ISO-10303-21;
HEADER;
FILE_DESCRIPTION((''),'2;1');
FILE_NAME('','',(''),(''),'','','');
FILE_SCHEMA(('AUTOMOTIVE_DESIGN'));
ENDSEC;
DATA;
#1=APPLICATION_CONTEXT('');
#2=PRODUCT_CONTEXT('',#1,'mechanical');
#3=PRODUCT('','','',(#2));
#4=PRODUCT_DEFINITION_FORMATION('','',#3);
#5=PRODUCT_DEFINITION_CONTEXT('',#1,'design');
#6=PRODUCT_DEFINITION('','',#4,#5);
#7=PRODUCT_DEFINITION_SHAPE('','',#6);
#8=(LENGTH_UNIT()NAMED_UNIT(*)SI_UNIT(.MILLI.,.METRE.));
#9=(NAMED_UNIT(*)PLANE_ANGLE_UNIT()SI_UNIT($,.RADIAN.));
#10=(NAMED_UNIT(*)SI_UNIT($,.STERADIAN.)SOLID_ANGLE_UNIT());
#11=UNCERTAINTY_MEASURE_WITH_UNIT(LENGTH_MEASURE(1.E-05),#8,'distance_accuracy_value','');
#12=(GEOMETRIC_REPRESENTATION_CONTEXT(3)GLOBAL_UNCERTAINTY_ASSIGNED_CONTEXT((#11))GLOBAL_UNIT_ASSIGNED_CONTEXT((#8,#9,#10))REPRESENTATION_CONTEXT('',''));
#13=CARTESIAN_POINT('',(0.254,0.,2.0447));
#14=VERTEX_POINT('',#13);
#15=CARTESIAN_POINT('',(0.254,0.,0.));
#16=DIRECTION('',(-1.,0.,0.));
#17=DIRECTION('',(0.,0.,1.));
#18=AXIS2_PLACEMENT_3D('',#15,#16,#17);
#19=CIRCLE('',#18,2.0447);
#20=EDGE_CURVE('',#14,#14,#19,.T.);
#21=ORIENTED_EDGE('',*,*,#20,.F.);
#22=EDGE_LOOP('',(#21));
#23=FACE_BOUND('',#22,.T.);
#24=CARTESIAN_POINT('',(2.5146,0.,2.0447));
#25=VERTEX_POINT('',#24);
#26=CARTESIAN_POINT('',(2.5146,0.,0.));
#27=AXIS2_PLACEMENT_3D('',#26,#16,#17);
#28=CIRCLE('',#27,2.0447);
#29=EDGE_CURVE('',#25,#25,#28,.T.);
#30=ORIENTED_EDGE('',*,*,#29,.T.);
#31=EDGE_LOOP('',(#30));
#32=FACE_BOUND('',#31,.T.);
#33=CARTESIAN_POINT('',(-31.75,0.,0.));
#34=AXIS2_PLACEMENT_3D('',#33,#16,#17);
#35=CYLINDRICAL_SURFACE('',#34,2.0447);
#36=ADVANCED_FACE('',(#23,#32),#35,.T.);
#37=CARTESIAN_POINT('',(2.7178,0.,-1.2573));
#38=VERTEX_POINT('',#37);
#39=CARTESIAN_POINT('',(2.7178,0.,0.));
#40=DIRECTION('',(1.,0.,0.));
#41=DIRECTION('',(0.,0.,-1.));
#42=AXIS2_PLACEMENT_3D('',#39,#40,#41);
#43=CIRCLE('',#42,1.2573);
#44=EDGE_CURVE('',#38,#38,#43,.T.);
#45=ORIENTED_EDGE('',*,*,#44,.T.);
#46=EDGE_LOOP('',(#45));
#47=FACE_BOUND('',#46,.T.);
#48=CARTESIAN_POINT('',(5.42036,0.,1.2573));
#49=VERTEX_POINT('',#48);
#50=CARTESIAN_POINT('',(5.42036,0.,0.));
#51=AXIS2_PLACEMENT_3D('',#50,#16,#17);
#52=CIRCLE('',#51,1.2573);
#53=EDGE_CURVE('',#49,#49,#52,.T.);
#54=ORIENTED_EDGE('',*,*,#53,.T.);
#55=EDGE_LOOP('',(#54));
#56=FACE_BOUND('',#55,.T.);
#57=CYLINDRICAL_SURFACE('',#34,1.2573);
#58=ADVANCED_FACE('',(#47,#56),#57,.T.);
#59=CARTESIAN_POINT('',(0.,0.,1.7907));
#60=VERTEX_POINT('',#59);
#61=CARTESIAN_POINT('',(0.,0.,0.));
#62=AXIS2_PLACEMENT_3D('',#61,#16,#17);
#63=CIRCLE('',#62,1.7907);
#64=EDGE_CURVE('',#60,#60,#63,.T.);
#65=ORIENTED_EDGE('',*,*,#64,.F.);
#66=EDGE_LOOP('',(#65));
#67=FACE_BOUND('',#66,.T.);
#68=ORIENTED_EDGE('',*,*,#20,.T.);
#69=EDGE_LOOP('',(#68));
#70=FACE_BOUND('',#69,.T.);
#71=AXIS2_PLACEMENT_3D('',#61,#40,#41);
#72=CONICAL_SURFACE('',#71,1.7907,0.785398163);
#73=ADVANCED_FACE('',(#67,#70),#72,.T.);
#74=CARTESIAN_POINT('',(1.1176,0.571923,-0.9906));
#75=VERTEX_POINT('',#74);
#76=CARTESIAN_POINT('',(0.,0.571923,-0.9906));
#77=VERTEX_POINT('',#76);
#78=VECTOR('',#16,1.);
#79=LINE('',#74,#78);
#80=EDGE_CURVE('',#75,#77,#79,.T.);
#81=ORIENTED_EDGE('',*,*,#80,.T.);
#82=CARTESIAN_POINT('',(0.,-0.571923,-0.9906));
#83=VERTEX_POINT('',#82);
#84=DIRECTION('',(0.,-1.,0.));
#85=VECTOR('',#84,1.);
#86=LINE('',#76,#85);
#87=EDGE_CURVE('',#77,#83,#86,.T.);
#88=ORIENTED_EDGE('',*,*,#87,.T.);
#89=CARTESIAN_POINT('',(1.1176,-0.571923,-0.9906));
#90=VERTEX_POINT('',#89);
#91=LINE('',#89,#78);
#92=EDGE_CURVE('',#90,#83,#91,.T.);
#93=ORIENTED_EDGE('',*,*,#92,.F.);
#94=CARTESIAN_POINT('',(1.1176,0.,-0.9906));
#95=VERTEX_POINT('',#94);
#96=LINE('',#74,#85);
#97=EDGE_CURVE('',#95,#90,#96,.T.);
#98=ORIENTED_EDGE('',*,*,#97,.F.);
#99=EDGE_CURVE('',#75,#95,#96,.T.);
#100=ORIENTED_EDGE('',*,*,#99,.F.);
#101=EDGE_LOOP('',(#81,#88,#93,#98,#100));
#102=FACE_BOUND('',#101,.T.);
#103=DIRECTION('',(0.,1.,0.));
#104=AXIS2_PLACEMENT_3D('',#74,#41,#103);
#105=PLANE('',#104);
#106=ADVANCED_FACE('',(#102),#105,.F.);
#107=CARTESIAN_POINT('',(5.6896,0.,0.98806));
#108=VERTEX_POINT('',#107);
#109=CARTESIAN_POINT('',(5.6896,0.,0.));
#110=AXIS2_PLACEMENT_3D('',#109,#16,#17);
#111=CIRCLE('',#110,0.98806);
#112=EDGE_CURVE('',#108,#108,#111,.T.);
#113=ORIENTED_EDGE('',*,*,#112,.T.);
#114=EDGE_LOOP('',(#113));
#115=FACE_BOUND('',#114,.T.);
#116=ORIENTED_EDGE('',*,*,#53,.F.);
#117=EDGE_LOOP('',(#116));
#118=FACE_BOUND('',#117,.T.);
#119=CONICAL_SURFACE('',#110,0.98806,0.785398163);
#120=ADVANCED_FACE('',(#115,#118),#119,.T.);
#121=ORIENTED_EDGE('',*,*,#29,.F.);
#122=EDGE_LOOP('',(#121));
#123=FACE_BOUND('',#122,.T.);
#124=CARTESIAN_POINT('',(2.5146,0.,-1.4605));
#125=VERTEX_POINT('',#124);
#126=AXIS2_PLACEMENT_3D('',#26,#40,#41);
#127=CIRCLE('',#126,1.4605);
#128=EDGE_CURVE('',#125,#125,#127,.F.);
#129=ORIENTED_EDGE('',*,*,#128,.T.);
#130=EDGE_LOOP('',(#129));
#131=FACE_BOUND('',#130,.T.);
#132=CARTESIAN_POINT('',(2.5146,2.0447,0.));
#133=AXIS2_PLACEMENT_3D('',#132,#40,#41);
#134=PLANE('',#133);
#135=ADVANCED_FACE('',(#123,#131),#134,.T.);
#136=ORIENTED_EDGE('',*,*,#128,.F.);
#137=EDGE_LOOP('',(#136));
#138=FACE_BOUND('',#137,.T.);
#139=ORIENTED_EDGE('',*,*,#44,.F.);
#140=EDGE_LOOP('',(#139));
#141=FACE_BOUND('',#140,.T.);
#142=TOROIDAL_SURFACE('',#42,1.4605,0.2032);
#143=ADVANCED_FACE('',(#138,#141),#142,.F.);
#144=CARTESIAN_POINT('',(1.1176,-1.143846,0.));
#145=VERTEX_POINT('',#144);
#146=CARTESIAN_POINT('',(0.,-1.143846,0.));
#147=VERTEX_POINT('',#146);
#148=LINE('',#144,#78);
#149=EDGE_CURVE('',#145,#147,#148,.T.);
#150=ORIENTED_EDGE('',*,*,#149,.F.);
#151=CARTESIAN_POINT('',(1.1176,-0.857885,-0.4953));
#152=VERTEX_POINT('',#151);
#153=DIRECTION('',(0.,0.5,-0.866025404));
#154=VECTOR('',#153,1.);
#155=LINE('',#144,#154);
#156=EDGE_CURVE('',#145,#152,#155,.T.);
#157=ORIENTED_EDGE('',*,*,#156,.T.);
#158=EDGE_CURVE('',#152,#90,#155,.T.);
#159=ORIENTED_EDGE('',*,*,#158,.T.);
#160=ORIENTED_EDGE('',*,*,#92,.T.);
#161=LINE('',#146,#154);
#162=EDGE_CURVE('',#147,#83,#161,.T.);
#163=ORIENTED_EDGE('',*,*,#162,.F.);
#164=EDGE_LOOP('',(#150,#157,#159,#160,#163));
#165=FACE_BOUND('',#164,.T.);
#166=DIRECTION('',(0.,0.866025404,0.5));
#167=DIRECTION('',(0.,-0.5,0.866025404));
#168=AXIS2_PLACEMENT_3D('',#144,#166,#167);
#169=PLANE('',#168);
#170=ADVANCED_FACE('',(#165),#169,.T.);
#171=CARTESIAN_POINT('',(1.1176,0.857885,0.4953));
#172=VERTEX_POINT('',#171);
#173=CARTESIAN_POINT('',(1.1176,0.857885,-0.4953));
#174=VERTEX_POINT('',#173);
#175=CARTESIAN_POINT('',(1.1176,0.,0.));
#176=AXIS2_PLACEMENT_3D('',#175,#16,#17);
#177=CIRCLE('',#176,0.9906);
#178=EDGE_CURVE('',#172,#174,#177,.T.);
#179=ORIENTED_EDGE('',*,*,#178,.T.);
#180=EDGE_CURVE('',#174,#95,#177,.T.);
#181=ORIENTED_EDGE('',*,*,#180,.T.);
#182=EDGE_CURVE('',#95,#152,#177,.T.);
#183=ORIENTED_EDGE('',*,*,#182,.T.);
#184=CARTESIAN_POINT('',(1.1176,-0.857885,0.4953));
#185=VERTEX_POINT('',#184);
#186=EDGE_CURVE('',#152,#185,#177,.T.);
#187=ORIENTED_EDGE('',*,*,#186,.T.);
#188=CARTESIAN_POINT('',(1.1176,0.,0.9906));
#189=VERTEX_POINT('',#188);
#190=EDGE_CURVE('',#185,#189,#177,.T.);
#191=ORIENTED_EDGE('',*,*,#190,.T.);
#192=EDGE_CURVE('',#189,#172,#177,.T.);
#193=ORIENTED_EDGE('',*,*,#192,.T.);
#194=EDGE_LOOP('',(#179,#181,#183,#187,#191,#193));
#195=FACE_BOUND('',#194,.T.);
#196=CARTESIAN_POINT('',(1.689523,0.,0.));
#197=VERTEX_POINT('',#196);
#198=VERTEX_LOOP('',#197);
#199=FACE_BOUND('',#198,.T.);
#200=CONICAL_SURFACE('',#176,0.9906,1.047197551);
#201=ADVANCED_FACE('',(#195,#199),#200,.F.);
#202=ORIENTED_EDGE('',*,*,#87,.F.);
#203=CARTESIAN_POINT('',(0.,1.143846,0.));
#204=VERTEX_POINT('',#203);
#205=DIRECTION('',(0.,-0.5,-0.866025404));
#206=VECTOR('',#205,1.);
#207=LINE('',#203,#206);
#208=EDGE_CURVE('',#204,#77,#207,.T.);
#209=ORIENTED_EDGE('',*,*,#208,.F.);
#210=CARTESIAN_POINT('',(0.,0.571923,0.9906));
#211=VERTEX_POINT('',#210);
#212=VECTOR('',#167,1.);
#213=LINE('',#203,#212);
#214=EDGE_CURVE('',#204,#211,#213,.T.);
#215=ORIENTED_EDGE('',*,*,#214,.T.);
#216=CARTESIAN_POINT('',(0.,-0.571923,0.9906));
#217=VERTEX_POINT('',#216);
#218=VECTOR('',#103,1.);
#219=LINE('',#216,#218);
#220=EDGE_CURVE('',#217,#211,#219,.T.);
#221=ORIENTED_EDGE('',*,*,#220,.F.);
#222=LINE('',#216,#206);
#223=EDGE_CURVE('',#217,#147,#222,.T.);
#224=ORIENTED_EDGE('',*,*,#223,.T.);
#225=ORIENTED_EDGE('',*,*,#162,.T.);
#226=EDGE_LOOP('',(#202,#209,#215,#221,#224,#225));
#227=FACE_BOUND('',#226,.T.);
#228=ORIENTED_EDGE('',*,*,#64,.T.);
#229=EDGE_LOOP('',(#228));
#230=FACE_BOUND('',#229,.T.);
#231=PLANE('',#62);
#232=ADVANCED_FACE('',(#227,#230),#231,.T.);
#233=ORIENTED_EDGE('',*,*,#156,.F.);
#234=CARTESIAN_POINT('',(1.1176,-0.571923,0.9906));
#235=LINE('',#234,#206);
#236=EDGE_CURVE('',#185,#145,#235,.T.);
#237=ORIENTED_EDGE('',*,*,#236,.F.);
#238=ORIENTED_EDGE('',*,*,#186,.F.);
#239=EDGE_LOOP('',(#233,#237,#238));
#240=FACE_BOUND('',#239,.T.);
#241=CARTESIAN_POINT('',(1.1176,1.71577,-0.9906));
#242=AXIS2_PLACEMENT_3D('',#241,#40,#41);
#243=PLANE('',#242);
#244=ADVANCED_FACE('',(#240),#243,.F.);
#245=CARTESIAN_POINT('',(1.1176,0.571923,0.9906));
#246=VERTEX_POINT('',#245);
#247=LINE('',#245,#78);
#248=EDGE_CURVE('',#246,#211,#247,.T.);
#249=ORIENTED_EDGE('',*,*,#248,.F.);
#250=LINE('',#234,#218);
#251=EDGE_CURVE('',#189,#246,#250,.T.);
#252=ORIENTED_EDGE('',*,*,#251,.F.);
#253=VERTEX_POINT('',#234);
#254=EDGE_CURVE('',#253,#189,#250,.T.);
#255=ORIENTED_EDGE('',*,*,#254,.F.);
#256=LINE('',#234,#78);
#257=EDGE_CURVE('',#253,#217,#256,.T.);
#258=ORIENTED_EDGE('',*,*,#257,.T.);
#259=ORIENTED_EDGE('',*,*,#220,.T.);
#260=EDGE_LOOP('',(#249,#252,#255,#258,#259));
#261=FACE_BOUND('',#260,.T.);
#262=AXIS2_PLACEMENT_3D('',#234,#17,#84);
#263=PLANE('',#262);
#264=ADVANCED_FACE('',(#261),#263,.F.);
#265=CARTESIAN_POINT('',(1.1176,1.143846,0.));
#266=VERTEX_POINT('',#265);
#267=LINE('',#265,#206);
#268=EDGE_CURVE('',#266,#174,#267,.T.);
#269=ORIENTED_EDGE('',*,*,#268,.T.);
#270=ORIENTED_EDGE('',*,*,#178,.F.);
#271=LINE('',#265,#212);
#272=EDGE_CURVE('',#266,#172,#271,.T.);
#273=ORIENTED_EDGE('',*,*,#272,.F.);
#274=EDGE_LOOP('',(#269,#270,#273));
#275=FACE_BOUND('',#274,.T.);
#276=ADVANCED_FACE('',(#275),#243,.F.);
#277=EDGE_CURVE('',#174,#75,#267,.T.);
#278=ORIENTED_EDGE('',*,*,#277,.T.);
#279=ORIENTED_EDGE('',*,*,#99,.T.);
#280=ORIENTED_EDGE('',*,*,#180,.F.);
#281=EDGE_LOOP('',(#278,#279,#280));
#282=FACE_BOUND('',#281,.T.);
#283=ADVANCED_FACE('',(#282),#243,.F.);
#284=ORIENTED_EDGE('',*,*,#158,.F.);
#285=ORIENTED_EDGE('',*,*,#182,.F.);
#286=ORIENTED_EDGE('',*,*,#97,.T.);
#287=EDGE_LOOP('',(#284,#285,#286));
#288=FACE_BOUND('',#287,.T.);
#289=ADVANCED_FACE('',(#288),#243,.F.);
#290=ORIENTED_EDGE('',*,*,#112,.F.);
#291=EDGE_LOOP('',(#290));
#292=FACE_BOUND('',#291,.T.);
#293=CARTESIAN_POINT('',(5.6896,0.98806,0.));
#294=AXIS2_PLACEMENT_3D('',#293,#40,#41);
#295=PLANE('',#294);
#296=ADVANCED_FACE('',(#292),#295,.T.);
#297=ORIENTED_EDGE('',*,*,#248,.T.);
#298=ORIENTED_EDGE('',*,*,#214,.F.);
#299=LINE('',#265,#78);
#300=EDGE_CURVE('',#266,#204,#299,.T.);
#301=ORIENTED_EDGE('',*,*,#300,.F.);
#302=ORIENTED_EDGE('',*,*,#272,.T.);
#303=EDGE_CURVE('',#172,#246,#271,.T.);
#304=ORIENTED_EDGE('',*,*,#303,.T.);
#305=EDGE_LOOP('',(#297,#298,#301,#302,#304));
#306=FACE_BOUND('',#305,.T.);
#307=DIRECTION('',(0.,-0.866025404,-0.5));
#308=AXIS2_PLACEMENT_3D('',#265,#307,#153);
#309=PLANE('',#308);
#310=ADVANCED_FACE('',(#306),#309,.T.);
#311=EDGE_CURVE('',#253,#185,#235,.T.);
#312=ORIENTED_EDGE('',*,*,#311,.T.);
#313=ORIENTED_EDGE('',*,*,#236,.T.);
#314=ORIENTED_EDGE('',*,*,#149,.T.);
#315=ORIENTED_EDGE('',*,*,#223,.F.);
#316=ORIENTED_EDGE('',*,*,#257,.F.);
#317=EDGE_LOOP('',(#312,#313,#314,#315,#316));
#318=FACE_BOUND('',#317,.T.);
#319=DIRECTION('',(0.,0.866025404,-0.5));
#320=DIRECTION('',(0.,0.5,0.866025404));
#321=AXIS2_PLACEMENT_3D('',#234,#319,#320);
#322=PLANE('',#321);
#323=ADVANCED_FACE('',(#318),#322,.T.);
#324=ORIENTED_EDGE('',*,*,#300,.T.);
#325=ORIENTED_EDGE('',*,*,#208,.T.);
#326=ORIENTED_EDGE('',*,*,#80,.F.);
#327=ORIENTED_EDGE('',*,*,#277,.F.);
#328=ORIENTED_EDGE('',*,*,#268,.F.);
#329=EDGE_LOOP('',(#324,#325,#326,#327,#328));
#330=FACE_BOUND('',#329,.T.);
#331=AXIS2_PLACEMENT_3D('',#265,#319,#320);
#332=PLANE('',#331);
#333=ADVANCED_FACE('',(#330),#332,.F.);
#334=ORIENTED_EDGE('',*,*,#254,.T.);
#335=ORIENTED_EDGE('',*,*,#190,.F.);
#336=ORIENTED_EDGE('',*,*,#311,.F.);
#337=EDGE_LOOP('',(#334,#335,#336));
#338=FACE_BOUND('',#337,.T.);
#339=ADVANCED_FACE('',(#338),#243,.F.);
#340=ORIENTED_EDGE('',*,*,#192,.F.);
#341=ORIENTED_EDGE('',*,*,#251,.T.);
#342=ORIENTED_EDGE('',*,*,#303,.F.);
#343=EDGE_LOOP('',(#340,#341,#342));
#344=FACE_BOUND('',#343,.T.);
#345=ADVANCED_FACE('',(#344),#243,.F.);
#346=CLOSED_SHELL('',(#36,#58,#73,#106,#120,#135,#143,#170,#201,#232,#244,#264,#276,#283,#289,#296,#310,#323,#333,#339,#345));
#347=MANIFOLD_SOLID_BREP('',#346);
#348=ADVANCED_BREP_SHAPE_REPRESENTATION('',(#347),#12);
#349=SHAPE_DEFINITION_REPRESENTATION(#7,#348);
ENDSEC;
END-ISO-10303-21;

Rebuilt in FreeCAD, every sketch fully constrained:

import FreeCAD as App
import Part
import Sketcher
Q = App.Units.Quantity


def edges_at(feature, points):
    """Names of the edges that pass closest to the given points."""
    edges = feature.Shape.Edges
    near = lambda p: min(range(len(edges)), key=lambda i: edges[i].distToShape(Part.Vertex(*p))[0])
    return sorted({f"Edge{near(p) + 1}" for p in points})

doc = App.newDocument("Part")
params = doc.addObject("Spreadsheet::Sheet", "Params")
for row, (alias, value) in enumerate([
    ("sketch1_width", "0.224 in"),
    ("sketch1_width2", "0.089 in"),
    ("sketch1_height", "0.031 in"),
    ("revolution_angle", "360 deg"),
    ("fillet_radius", "0.008 in"),
    ("sketch2_width", "0.044 in"),
    ("sketch2_height", "0.039 in"),
    ("groove_angle", "360 deg"),
    ("pocket1_length", "0.044 in"),
], start=1):
    params.set(f"A{row}", alias)
    params.set(f"B{row}", "=" + value)
    params.setAlias(f"B{row}", alias)

body = doc.addObject("PartDesign::Body", "Body")

sketch1 = body.newObject("Sketcher::SketchObject", "Sketch")
sketch1.AttachmentSupport = (doc.getObject("XY_Plane"), [""])
sketch1.MapMode = "FlatFace"
sketch1.addGeometry(Part.LineSegment(App.Vector(0, 1.79, 0), App.Vector(0, 0, 0)), False)
sketch1.addGeometry(Part.LineSegment(App.Vector(0, 0, 0), App.Vector(5.69, 0, 0)), False)
sketch1.addGeometry(Part.LineSegment(App.Vector(5.69, 0, 0), App.Vector(5.69, 0.99, 0)), False)
sketch1.addGeometry(Part.LineSegment(App.Vector(5.69, 0.99, 0), App.Vector(5.42, 1.26, 0)), False)
sketch1.addGeometry(Part.LineSegment(App.Vector(5.42, 1.26, 0), App.Vector(2.51, 1.26, 0)), False)
sketch1.addGeometry(Part.LineSegment(App.Vector(2.51, 1.26, 0), App.Vector(2.51, 2.04, 0)), False)
sketch1.addGeometry(Part.LineSegment(App.Vector(2.51, 2.04, 0), App.Vector(0.25, 2.04, 0)), False)
sketch1.addGeometry(Part.LineSegment(App.Vector(0.25, 2.04, 0), App.Vector(0, 1.79, 0)), False)
sketch1.addConstraint(Sketcher.Constraint("Coincident", 0, 2, 1, 1))
sketch1.addConstraint(Sketcher.Constraint("Coincident", 1, 2, 2, 1))
sketch1.addConstraint(Sketcher.Constraint("Coincident", 2, 2, 3, 1))
sketch1.addConstraint(Sketcher.Constraint("Coincident", 3, 2, 4, 1))
sketch1.addConstraint(Sketcher.Constraint("Coincident", 4, 2, 5, 1))
sketch1.addConstraint(Sketcher.Constraint("Coincident", 5, 2, 6, 1))
sketch1.addConstraint(Sketcher.Constraint("Coincident", 6, 2, 7, 1))
sketch1.addConstraint(Sketcher.Constraint("Coincident", 7, 2, 0, 1))
sketch1.addConstraint(Sketcher.Constraint("Vertical", 0))
sketch1.addConstraint(Sketcher.Constraint("Horizontal", 1))
sketch1.addConstraint(Sketcher.Constraint("Vertical", 2))
sketch1.addConstraint(Sketcher.Constraint("Horizontal", 4))
sketch1.addConstraint(Sketcher.Constraint("Vertical", 5))
sketch1.addConstraint(Sketcher.Constraint("Horizontal", 6))
sketch1.addConstraint(Sketcher.Constraint("Coincident", 0, 2, -1, 1))
sketch1.addConstraint(Sketcher.Constraint("Perpendicular", 3, 7))
sketch1.addConstraint(Sketcher.Constraint("Angle", 3, Q("135 deg")))
sketch1.addConstraint(Sketcher.Constraint("DistanceX", 1, 1, 1, 2, Q("0.224 in")))
sketch1.addConstraint(Sketcher.Constraint("DistanceX", 6, 2, 6, 1, Q("0.089 in")))
sketch1.addConstraint(Sketcher.Constraint("DistanceY", 5, 1, 5, 2, Q("0.031 in")))
sketch1.addConstraint(Sketcher.Constraint("DistanceX", -1, 1, 6, 2, Q("0.01 in")))
sketch1.addConstraint(Sketcher.Constraint("DistanceX", 4, 2, 4, 1, Q("0.1144 in")))
sketch1.addConstraint(Sketcher.Constraint("DistanceY", 0, 2, 0, 1, Q("0.0705 in")))
sketch1.setExpression("Constraints[17]", "Params.sketch1_width")
sketch1.setExpression("Constraints[18]", "Params.sketch1_width2")
sketch1.setExpression("Constraints[19]", "Params.sketch1_height")
revolution = body.newObject("PartDesign::Revolution", "Revolution")
revolution.Profile = sketch1
revolution.ReferenceAxis = (sketch1, ["H_Axis"])
revolution.setExpression("Angle", "Params.revolution_angle")
doc.recompute()

fillet = body.newObject("PartDesign::Fillet", "Fillet")
fillet.Base = (revolution, edges_at(revolution, [(2.515, 0, -1.257)]))
fillet.setExpression("Radius", "Params.fillet_radius")

sketch2 = body.newObject("Sketcher::SketchObject", "Sketch001")
sketch2.AttachmentSupport = (doc.getObject("XY_Plane"), [""])
sketch2.MapMode = "FlatFace"
sketch2.addGeometry(Part.LineSegment(App.Vector(1.1, 1, 0), App.Vector(0, 1, 0)), False)
sketch2.addGeometry(Part.LineSegment(App.Vector(0, 1, 0), App.Vector(0, 0, 0)), False)
sketch2.addGeometry(Part.LineSegment(App.Vector(0, 0, 0), App.Vector(1.7, 0, 0)), False)
sketch2.addGeometry(Part.LineSegment(App.Vector(1.7, 0, 0), App.Vector(1.1, 1, 0)), False)
sketch2.addConstraint(Sketcher.Constraint("Coincident", 0, 2, 1, 1))
sketch2.addConstraint(Sketcher.Constraint("Coincident", 1, 2, 2, 1))
sketch2.addConstraint(Sketcher.Constraint("Coincident", 2, 2, 3, 1))
sketch2.addConstraint(Sketcher.Constraint("Coincident", 3, 2, 0, 1))
sketch2.addConstraint(Sketcher.Constraint("Horizontal", 0))
sketch2.addConstraint(Sketcher.Constraint("Vertical", 1))
sketch2.addConstraint(Sketcher.Constraint("Horizontal", 2))
sketch2.addConstraint(Sketcher.Constraint("Coincident", 1, 2, -1, 1))
sketch2.addConstraint(Sketcher.Constraint("Angle", 3, Q("120 deg")))
sketch2.addConstraint(Sketcher.Constraint("DistanceX", 0, 2, 0, 1, Q("0.044 in")))
sketch2.addConstraint(Sketcher.Constraint("DistanceY", 1, 2, 1, 1, Q("0.039 in")))
sketch2.setExpression("Constraints[9]", "Params.sketch2_width")
sketch2.setExpression("Constraints[10]", "Params.sketch2_height")
groove = body.newObject("PartDesign::Groove", "Groove")
groove.Profile = sketch2
groove.ReferenceAxis = (sketch2, ["H_Axis"])
groove.setExpression("Angle", "Params.groove_angle")

sketch3 = body.newObject("Sketcher::SketchObject", "Sketch002")
sketch3.AttachmentSupport = (doc.getObject("YZ_Plane"), [""])
sketch3.MapMode = "FlatFace"
sketch3.addGeometry(Part.LineSegment(App.Vector(1.1, 0, 0), App.Vector(0.6, -1, 0)), False)
sketch3.addGeometry(Part.LineSegment(App.Vector(0.6, -1, 0), App.Vector(-0.6, -1, 0)), False)
sketch3.addGeometry(Part.LineSegment(App.Vector(-0.6, -1, 0), App.Vector(-1.1, 0, 0)), False)
sketch3.addGeometry(Part.LineSegment(App.Vector(-1.1, 0, 0), App.Vector(-0.6, 1, 0)), False)
sketch3.addGeometry(Part.LineSegment(App.Vector(-0.6, 1, 0), App.Vector(0.6, 1, 0)), False)
sketch3.addGeometry(Part.LineSegment(App.Vector(0.6, 1, 0), App.Vector(1.1, 0, 0)), False)
sketch3.addConstraint(Sketcher.Constraint("Coincident", 0, 2, 1, 1))
sketch3.addConstraint(Sketcher.Constraint("Coincident", 1, 2, 2, 1))
sketch3.addConstraint(Sketcher.Constraint("Coincident", 2, 2, 3, 1))
sketch3.addConstraint(Sketcher.Constraint("Coincident", 3, 2, 4, 1))
sketch3.addConstraint(Sketcher.Constraint("Coincident", 4, 2, 5, 1))
sketch3.addConstraint(Sketcher.Constraint("Coincident", 5, 2, 0, 1))
sketch3.addConstraint(Sketcher.Constraint("Horizontal", 1))
sketch3.addConstraint(Sketcher.Constraint("Horizontal", 4))
sketch3.addConstraint(Sketcher.Constraint("Symmetric", 0, 2, 3, 2, -1, 1))
sketch3.addConstraint(Sketcher.Constraint("Symmetric", 2, 2, 5, 2, -1, 1))
sketch3.addConstraint(Sketcher.Constraint("PointOnObject", 2, 2, -1))
sketch3.addConstraint(Sketcher.Constraint("Parallel", 2, 5))
sketch3.addConstraint(Sketcher.Constraint("Vertical", 1, 2, 3, 2))
sketch3.addConstraint(Sketcher.Constraint("Angle", 0, Q("-120 deg")))
sketch3.addConstraint(Sketcher.Constraint("DistanceY", 0, 2, -1, 1, Q("0.039 in")))
sketch3.addConstraint(Sketcher.Constraint("DistanceX", 1, 2, 1, 1, Q("1.143846 mm")))
pocket1 = body.newObject("PartDesign::Pocket", "Pocket")
pocket1.Profile = sketch3
pocket1.setExpression("Length", "Params.pocket1_length")
pocket1.Reversed = True

doc.recompute()
